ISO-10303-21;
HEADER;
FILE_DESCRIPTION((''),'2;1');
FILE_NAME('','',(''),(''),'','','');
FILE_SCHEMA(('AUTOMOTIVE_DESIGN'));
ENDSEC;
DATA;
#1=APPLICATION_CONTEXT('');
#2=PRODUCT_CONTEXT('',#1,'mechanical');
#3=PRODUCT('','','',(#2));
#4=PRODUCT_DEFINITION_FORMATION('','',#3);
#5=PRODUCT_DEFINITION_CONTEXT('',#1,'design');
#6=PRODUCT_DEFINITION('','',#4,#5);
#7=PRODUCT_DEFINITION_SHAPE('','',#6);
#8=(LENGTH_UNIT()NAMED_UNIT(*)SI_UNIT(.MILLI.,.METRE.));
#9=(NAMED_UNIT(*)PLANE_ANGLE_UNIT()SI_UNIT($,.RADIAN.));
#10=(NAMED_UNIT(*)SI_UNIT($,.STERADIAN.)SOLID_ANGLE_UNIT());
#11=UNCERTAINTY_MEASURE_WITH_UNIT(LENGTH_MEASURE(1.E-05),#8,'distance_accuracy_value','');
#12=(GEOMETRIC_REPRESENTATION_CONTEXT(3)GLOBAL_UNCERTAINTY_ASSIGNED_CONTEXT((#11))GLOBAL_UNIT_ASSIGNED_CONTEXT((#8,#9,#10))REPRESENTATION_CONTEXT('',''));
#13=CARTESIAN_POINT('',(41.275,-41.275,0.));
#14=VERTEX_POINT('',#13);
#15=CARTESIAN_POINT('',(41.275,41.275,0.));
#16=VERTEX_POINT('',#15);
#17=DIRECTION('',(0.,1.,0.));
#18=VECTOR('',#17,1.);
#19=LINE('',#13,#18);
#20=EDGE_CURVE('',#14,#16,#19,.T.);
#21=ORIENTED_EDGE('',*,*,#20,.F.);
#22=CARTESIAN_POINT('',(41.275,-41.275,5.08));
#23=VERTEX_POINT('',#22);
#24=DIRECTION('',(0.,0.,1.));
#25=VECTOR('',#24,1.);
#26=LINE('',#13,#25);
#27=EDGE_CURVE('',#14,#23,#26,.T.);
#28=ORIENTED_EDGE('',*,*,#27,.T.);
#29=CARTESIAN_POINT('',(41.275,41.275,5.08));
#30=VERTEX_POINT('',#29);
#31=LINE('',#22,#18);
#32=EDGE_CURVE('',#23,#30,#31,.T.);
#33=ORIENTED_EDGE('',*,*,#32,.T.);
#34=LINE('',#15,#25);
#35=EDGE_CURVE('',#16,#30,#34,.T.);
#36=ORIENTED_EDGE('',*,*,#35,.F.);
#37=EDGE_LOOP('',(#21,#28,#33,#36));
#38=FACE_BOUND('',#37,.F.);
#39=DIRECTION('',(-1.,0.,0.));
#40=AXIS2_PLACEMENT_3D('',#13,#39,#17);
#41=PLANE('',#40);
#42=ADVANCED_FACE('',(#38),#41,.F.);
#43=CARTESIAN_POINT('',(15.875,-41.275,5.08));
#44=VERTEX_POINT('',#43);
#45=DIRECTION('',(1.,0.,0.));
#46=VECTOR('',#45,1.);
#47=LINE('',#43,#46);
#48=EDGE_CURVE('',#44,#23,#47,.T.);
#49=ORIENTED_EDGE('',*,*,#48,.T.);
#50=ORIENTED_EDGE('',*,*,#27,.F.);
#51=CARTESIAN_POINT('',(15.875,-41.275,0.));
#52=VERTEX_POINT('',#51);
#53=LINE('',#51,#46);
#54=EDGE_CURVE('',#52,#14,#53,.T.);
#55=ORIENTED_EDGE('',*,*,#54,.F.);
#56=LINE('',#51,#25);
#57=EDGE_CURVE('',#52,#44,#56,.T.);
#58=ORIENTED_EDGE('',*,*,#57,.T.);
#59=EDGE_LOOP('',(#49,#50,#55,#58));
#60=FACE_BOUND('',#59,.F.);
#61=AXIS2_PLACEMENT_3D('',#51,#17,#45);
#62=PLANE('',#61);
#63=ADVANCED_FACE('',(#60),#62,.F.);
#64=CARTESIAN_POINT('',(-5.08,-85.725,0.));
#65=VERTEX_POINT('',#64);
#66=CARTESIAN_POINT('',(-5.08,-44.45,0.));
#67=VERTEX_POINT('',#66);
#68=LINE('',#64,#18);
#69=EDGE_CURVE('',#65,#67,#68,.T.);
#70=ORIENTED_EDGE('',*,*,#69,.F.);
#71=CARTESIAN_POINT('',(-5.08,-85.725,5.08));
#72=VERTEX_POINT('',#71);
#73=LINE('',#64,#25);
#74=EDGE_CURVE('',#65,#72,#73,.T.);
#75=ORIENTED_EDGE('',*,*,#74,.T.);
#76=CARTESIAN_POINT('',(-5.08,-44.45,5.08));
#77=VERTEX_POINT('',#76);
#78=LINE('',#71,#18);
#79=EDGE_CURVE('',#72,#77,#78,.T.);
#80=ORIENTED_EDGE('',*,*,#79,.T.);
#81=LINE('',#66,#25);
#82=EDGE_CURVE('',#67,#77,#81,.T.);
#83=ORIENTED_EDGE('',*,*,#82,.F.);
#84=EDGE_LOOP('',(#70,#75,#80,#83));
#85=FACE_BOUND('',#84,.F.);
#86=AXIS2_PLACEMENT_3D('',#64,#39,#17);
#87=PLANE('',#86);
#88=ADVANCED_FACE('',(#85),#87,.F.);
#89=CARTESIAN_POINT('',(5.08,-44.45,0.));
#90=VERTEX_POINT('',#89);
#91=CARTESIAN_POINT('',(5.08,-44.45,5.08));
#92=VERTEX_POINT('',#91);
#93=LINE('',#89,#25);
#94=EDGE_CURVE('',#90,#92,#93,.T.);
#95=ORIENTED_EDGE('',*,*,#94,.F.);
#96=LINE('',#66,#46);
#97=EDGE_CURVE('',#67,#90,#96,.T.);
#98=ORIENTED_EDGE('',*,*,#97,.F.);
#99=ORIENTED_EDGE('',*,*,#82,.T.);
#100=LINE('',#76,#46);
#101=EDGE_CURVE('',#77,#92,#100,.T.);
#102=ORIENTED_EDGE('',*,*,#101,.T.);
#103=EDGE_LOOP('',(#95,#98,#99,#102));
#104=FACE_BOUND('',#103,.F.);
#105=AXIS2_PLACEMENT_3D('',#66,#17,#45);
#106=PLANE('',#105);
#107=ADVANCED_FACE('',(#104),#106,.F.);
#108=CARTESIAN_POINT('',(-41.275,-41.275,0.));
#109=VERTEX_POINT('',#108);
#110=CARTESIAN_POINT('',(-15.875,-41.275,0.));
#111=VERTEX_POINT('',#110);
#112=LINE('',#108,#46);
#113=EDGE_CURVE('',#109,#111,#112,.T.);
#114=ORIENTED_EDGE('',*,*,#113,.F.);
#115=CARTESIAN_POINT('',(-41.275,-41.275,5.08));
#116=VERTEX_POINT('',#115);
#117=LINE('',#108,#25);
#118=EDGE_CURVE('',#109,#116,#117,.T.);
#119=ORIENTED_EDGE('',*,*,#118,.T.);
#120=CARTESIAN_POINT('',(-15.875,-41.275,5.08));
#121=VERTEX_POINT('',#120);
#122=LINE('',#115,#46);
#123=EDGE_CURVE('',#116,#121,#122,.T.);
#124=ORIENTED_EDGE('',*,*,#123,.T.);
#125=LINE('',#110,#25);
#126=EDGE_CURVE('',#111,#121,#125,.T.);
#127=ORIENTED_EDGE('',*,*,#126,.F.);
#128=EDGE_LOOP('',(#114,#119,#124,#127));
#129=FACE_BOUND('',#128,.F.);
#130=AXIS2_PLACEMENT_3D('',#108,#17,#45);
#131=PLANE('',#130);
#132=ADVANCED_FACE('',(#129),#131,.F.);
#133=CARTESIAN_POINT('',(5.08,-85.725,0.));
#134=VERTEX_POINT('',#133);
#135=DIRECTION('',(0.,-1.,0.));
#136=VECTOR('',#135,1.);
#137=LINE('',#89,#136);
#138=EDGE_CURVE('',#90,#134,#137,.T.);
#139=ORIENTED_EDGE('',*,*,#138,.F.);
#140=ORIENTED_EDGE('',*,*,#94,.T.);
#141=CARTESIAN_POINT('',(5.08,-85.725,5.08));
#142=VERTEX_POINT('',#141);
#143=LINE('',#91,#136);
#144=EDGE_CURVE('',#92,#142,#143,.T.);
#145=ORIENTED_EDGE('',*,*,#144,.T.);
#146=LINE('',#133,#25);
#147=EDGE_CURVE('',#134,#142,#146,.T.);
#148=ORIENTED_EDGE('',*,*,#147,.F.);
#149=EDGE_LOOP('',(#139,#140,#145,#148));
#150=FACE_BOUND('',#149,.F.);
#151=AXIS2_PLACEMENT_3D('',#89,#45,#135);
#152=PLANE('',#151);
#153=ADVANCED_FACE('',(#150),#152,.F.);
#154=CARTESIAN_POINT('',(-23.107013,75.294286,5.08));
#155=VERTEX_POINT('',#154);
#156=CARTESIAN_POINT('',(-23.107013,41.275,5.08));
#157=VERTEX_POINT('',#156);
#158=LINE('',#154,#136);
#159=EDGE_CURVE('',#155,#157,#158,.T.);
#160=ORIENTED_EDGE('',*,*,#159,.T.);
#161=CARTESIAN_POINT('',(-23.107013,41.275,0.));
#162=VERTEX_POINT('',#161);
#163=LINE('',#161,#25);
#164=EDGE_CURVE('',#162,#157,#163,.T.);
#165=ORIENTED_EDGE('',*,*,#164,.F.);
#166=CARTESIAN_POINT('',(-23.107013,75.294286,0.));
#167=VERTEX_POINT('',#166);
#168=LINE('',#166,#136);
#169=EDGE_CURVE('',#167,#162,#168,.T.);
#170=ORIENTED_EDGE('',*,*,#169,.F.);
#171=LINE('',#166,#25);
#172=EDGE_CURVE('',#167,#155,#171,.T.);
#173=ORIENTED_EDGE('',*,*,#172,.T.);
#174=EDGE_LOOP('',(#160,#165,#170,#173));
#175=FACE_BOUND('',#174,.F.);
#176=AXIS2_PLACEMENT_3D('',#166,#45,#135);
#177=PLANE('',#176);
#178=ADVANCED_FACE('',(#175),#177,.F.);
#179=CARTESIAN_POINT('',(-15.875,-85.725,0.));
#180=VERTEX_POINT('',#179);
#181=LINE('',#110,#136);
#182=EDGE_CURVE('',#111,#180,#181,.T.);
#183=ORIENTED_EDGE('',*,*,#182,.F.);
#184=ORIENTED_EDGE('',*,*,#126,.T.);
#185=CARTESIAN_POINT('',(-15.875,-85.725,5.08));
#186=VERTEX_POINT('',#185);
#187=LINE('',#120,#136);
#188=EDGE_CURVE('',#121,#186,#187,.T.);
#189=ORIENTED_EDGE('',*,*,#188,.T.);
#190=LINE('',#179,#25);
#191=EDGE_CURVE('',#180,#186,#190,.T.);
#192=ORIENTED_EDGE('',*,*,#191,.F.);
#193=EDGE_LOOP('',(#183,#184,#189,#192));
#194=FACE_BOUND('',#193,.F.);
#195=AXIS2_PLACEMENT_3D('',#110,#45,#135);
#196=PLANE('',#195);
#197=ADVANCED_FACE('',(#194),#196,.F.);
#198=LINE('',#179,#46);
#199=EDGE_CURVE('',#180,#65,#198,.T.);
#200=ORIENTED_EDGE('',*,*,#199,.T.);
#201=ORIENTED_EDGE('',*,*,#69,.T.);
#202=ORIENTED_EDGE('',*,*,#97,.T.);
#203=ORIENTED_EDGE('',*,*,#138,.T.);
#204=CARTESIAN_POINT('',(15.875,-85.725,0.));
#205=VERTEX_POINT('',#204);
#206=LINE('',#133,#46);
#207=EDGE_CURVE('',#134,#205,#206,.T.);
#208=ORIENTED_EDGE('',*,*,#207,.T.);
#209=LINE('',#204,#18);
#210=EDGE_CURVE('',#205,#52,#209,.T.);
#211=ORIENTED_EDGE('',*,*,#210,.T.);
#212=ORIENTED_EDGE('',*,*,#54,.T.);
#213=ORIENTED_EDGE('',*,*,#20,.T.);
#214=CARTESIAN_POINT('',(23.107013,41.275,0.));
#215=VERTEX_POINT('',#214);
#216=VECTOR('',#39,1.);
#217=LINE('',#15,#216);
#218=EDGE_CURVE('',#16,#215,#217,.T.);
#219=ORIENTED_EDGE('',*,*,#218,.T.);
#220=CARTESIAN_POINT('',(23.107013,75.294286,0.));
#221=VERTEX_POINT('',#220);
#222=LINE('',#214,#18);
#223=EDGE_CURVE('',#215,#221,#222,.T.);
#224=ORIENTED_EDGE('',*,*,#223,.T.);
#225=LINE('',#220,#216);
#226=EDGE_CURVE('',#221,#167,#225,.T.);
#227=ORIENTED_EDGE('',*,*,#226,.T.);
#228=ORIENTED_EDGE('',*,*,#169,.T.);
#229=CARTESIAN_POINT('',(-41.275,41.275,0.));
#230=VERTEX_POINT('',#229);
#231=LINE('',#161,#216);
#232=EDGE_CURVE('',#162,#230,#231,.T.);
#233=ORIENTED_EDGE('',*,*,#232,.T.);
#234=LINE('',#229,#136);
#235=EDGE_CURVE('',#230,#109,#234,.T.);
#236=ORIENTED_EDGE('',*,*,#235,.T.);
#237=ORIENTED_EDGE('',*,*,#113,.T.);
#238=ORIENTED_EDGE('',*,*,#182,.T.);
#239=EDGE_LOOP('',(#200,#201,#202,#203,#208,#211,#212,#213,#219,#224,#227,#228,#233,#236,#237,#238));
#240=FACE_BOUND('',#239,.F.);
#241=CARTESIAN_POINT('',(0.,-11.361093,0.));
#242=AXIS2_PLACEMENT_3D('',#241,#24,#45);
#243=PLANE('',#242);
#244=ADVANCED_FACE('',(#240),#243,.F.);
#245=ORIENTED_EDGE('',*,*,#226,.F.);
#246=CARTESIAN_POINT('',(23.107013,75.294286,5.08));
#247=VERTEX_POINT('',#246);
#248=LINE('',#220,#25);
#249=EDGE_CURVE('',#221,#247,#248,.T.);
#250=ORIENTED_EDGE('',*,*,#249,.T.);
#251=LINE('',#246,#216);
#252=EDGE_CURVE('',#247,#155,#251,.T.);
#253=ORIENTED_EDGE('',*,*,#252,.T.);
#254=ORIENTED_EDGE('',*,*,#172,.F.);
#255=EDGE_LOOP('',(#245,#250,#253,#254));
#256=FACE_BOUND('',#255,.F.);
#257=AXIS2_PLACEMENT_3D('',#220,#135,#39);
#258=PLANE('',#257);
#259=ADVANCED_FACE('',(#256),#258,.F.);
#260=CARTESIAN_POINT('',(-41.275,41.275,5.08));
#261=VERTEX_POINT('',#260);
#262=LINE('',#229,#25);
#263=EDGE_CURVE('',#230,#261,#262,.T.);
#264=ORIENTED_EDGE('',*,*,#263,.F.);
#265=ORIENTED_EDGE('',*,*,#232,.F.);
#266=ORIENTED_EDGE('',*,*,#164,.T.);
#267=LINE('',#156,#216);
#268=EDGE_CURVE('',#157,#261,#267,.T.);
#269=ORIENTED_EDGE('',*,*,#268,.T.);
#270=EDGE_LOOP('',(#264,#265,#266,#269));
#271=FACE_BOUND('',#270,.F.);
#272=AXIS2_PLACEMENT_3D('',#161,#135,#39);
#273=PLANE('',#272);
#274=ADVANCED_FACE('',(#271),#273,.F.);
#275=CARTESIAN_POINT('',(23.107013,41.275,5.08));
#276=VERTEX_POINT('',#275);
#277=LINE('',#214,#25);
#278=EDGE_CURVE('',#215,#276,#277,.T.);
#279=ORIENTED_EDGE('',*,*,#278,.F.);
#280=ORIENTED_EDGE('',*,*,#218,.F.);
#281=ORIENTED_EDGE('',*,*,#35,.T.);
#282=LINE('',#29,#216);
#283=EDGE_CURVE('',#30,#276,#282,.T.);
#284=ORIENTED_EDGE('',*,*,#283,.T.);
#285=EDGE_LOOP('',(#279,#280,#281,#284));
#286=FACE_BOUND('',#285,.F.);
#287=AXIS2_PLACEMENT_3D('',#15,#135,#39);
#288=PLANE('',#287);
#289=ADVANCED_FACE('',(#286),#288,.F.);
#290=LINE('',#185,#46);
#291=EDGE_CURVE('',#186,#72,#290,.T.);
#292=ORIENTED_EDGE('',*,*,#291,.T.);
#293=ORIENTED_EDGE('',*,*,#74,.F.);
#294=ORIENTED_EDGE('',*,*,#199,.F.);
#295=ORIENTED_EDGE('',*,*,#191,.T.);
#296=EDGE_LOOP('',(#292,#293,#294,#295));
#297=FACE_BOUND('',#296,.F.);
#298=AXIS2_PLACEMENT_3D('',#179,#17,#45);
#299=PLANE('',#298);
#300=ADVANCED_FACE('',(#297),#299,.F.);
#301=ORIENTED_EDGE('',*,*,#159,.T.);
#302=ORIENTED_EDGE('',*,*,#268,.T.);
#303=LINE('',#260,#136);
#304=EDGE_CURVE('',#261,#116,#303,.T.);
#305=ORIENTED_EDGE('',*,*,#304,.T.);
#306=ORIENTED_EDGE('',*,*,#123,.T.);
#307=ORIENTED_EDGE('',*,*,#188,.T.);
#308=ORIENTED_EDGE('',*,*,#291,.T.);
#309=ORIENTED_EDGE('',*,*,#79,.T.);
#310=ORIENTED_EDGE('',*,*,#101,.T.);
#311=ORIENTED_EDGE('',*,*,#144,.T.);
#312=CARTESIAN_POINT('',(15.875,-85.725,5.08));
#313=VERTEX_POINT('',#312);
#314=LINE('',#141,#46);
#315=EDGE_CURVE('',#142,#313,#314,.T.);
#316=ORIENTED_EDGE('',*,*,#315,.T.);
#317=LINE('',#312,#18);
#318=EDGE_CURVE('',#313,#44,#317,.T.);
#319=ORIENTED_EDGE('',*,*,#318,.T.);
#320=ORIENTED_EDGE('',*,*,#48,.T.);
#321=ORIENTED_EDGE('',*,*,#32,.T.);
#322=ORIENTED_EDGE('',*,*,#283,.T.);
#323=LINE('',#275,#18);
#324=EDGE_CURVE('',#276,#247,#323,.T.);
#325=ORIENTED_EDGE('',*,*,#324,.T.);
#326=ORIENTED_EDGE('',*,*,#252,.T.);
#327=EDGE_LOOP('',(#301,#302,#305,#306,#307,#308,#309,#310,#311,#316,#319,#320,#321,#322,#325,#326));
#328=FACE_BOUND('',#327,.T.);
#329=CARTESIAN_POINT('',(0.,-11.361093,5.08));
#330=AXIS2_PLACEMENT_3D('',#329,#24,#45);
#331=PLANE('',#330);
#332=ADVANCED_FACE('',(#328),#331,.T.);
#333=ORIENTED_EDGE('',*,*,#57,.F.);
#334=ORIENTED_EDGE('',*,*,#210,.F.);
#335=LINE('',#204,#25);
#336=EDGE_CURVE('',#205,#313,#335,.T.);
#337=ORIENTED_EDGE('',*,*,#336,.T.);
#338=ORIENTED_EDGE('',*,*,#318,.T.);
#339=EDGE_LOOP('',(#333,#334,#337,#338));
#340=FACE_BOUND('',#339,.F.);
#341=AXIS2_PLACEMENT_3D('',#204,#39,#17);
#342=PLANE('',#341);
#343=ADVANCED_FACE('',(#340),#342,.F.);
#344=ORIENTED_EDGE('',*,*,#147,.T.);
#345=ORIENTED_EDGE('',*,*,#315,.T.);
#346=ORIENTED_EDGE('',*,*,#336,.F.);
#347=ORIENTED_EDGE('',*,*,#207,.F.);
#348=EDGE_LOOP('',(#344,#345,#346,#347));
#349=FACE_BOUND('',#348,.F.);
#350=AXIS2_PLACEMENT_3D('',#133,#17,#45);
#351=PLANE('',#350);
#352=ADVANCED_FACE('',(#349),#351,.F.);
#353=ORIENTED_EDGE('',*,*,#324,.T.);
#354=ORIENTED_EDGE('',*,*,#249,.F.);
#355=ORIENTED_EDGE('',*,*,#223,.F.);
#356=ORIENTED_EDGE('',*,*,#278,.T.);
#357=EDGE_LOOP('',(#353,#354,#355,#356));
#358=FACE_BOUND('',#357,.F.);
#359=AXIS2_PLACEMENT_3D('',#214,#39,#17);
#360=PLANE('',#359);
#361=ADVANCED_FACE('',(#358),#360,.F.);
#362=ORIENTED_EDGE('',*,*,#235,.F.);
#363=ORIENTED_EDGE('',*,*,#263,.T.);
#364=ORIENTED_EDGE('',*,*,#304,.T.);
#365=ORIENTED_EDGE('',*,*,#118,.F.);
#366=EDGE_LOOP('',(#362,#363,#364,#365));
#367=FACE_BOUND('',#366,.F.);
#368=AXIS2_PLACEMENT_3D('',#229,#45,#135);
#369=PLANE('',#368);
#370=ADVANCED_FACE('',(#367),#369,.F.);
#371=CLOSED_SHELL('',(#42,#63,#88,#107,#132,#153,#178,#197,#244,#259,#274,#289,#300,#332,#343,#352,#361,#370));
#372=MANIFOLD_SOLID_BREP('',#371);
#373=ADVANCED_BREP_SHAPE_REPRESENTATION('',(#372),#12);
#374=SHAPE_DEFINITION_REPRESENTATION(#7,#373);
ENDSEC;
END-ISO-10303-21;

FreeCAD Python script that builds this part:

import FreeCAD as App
import Part
import Sketcher
Q = App.Units.Quantity


def add_polygon(sketch, points):
    """Adds a closed chain of lines whose ends are joined by coincident constraints."""
    first, n = sketch.GeometryCount, len(points)
    for a, b in zip(points, points[1:] + points[:1]):
        sketch.addGeometry(Part.LineSegment(App.Vector(*a, 0), App.Vector(*b, 0)), False)
    for i in range(n):
        sketch.addConstraint(Sketcher.Constraint("Coincident", first + i, 2, first + (i + 1) % n, 1))

doc = App.newDocument("Part")
body = doc.addObject("PartDesign::Body", "Body")

sketch1 = doc.addObject("Sketcher::SketchObject", "Sketch")
body.addObject(sketch1)
sketch1.AttachmentSupport = (doc.XY_Plane, [""])
sketch1.MapMode = "FlatFace"
add_polygon(sketch1, [(41, -41), (41, 41), (23, 41), (23, 75), (-23, 75), (-23, 41), (-41, 41), (-41, -41), (-16, -41), (-16, -86), (-5, -86), (-5, -44), (5, -44), (5, -86), (16, -86), (16, -41)])
sketch1.addConstraint(Sketcher.Constraint("Vertical", 0))
sketch1.addConstraint(Sketcher.Constraint("Horizontal", 1))
sketch1.addConstraint(Sketcher.Constraint("Vertical", 2))
sketch1.addConstraint(Sketcher.Constraint("Horizontal", 3))
sketch1.addConstraint(Sketcher.Constraint("Vertical", 4))
sketch1.addConstraint(Sketcher.Constraint("Horizontal", 5))
sketch1.addConstraint(Sketcher.Constraint("Vertical", 6))
sketch1.addConstraint(Sketcher.Constraint("Horizontal", 7))
sketch1.addConstraint(Sketcher.Constraint("Vertical", 8))
sketch1.addConstraint(Sketcher.Constraint("Horizontal", 9))
sketch1.addConstraint(Sketcher.Constraint("Vertical", 10))
sketch1.addConstraint(Sketcher.Constraint("Horizontal", 11))
sketch1.addConstraint(Sketcher.Constraint("Vertical", 12))
sketch1.addConstraint(Sketcher.Constraint("Horizontal", 13))
sketch1.addConstraint(Sketcher.Constraint("Vertical", 14))
sketch1.addConstraint(Sketcher.Constraint("Horizontal", 15))
sketch1.addConstraint(Sketcher.Constraint("Symmetric", 0, 2, 6, 2, -1, 1))
sketch1.addConstraint(Sketcher.Constraint("Symmetric", 1, 2, 4, 2, -2))
sketch1.addConstraint(Sketcher.Constraint("Symmetric", 9, 2, 12, 2, -2))
sketch1.addConstraint(Sketcher.Constraint("Symmetric", 7, 2, 14, 2, -2))
sketch1.addConstraint(Sketcher.Constraint("DistanceX", 7, 1, 7, 2, Q("1 in")))
sketch1.addConstraint(Sketcher.Constraint("DistanceX", 11, 1, 11, 2, Q("0.4 in")))
sketch1.addConstraint(Sketcher.Constraint("DistanceY", 8, 2, 4, 2, Q("5 in")))
sketch1.addConstraint(Sketcher.Constraint("DistanceY", 0, 1, 0, 2, Q("3.25 in")))
sketch1.addConstraint(Sketcher.Constraint("DistanceX", 9, 1, 9, 2, Q("0.425 in")))
sketch1.addConstraint(Sketcher.Constraint("DistanceY", 10, 1, 10, 2, Q("1.625 in")))
sketch1.addConstraint(Sketcher.Constraint("DistanceX", 1, 2, 1, 1, 18.167987))
sketch1.addConstraint(Sketcher.Constraint("DistanceY", 2, 1, 2, 2, 34.019286))
pad1 = doc.addObject("PartDesign::Pad", "Pad")
body.addObject(pad1)
pad1.Profile = sketch1
pad1.Length = Q("0.2 in")

doc.recompute()
